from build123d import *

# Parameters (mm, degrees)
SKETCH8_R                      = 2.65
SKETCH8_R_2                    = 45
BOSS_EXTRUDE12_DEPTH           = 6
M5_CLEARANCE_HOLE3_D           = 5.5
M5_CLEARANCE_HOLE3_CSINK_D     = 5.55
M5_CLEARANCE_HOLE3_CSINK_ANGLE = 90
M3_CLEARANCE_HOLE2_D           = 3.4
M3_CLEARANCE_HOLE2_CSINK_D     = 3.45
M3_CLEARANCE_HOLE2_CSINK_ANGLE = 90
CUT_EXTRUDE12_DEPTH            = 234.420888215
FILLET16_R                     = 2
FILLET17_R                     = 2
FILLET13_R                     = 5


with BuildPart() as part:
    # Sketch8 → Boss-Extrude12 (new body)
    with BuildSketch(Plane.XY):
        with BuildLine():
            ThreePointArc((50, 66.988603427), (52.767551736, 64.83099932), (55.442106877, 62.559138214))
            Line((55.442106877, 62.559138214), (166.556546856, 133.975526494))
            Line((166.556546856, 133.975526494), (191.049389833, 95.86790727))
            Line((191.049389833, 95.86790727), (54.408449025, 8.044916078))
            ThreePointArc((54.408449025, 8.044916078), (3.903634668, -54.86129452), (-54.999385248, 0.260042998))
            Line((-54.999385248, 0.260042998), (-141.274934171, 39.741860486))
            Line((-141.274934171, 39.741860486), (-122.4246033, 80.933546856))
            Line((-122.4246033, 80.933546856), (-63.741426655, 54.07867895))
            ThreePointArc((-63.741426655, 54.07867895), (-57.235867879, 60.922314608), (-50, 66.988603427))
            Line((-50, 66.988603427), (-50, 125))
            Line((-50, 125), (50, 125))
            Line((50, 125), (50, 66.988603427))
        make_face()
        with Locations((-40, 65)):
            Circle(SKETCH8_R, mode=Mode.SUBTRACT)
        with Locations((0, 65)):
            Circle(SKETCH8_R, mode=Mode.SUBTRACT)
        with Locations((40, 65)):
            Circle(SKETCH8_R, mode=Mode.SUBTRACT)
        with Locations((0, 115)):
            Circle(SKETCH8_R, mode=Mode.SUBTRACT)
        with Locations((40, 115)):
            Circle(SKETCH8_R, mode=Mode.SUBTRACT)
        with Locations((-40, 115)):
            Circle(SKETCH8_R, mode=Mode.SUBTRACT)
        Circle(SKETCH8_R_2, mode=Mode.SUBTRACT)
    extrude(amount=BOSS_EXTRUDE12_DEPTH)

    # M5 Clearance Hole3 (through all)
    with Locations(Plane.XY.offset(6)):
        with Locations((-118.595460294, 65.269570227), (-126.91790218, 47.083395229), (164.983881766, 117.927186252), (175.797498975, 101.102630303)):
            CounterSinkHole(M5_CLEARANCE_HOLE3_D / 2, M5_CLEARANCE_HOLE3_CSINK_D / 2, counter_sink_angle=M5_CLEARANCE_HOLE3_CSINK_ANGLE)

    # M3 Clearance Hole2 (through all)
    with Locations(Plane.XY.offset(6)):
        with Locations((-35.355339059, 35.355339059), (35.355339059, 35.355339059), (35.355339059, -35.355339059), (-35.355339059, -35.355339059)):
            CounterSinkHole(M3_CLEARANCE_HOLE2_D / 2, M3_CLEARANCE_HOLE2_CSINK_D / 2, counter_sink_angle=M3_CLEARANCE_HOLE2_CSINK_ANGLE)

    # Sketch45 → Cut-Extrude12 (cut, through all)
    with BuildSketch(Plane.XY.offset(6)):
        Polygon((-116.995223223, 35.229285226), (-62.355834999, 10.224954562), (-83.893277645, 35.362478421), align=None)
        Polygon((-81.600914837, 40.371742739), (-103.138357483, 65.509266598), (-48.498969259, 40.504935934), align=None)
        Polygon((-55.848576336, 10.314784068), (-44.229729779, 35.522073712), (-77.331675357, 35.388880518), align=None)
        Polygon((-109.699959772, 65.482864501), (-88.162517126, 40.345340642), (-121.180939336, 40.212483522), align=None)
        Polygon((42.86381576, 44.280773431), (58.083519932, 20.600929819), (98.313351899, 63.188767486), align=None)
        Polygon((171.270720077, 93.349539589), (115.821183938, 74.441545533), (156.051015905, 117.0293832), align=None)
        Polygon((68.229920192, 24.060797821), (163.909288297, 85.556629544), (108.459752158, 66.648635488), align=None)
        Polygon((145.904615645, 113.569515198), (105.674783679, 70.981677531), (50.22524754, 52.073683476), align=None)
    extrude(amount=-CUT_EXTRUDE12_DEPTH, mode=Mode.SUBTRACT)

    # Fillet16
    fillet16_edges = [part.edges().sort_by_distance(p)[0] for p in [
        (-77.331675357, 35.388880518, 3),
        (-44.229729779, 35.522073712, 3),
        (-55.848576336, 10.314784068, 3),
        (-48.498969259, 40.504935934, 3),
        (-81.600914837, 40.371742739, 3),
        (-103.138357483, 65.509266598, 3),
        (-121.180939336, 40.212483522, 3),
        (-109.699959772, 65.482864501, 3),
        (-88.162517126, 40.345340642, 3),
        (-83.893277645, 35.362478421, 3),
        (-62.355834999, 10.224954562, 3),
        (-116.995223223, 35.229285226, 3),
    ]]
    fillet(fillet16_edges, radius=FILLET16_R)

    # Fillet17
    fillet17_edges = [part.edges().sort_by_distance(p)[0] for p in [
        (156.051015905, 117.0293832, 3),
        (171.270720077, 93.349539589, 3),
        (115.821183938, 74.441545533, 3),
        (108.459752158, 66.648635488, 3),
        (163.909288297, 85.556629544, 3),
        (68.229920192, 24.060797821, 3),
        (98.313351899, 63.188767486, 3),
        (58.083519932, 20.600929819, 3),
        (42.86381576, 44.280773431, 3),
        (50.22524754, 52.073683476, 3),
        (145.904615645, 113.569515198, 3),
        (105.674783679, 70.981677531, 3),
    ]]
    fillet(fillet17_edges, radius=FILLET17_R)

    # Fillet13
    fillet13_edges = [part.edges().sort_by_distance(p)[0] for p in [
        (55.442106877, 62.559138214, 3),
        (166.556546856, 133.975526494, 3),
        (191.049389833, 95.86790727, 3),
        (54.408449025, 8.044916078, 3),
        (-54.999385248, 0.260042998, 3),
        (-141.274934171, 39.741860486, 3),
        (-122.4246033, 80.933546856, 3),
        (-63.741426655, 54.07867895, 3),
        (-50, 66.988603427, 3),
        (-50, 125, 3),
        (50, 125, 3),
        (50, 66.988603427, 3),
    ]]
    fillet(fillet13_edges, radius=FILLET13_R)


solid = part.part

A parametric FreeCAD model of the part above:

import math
import FreeCAD as App
import Part
import Sketcher
from FreeCAD import Vector
Q = App.Units.Quantity


def edges_at(feature, points):
    """Names of the edges that pass closest to the given points."""
    edges = feature.Shape.Edges
    near = lambda p: min(range(len(edges)), key=lambda i: edges[i].distToShape(Part.Vertex(*p))[0])
    return sorted({f"Edge{near(p) + 1}" for p in points})


def add_polygon(sketch, points):
    """Adds a closed chain of lines whose ends are joined by coincident constraints."""
    first, n = sketch.GeometryCount, len(points)
    for a, b in zip(points, points[1:] + points[:1]):
        sketch.addGeometry(Part.LineSegment(App.Vector(*a, 0), App.Vector(*b, 0)), False)
    for i in range(n):
        sketch.addConstraint(Sketcher.Constraint("Coincident", first + i, 2, first + (i + 1) % n, 1))

doc = App.newDocument("Part")
body = doc.addObject("PartDesign::Body", "Body")

sketch1 = doc.addObject("Sketcher::SketchObject", "Sketch")
body.addObject(sketch1)
sketch1.AttachmentSupport = (doc.XY_Plane, [""])
sketch1.MapMode = "FlatFace"
sketch1.addGeometry(Part.ArcOfCircle(Part.Circle(Vector(0, 0, 0), Vector(0, 0, 1), 83.6), math.radians(48.45), math.radians(53.26)), False)
sketch1.addGeometry(Part.LineSegment(Vector(50, 67, 0), Vector(50, 125, 0)), False)
sketch1.addGeometry(Part.LineSegment(Vector(50, 125, 0), Vector(-50, 125, 0)), False)
sketch1.addGeometry(Part.LineSegment(Vector(-50, 125, 0), Vector(-50, 67, 0)), False)
sketch1.addGeometry(Part.ArcOfCircle(Part.Circle(Vector(0, 0, 0), Vector(0, 0, 1), 83.6), math.radians(126.74), math.radians(139.69)), False)
sketch1.addGeometry(Part.LineSegment(Vector(-63.7, 54.1, 0), Vector(-122.4, 80.9, 0)), False)
sketch1.addGeometry(Part.LineSegment(Vector(-122.4, 80.9, 0), Vector(-141.3, 39.7, 0)), False)
sketch1.addGeometry(Part.LineSegment(Vector(-141.3, 39.7, 0), Vector(-55, 0.3, 0)), False)
sketch1.addGeometry(Part.ArcOfCircle(Part.Circle(Vector(0, 0, 0), Vector(0, 0, 1), 55), math.radians(180), math.radians(368)), False)
sketch1.addGeometry(Part.LineSegment(Vector(54.4, 8, 0), Vector(191, 95.9, 0)), False)
sketch1.addGeometry(Part.LineSegment(Vector(191, 95.9, 0), Vector(166.6, 134, 0)), False)
sketch1.addGeometry(Part.LineSegment(Vector(166.6, 134, 0), Vector(55.4, 62.6, 0)), False)
sketch1.addGeometry(Part.Circle(Vector(0, 0, 0), Vector(0, 0, 1), 45), False)
sketch1.addGeometry(Part.Circle(Vector(40, 65, 0), Vector(0, 0, 1), 2.6), False)
sketch1.addGeometry(Part.Circle(Vector(40, 115, 0), Vector(0, 0, 1), 2.6), False)
sketch1.addGeometry(Part.Circle(Vector(0, 65, 0), Vector(0, 0, 1), 2.6), False)
sketch1.addGeometry(Part.Circle(Vector(-40, 65, 0), Vector(0, 0, 1), 2.6), False)
sketch1.addGeometry(Part.Circle(Vector(0, 115, 0), Vector(0, 0, 1), 2.6), False)
sketch1.addGeometry(Part.Circle(Vector(-40, 115, 0), Vector(0, 0, 1), 2.6), False)
sketch1.addConstraint(Sketcher.Constraint("Coincident", 0, 2, 1, 1))
sketch1.addConstraint(Sketcher.Constraint("Coincident", 1, 2, 2, 1))
sketch1.addConstraint(Sketcher.Constraint("Coincident", 2, 2, 3, 1))
sketch1.addConstraint(Sketcher.Constraint("Coincident", 3, 2, 4, 1))
sketch1.addConstraint(Sketcher.Constraint("Coincident", 4, 2, 5, 1))
sketch1.addConstraint(Sketcher.Constraint("Coincident", 5, 2, 6, 1))
sketch1.addConstraint(Sketcher.Constraint("Coincident", 6, 2, 7, 1))
sketch1.addConstraint(Sketcher.Constraint("Coincident", 7, 2, 8, 1))
sketch1.addConstraint(Sketcher.Constraint("Coincident", 8, 2, 9, 1))
sketch1.addConstraint(Sketcher.Constraint("Coincident", 9, 2, 10, 1))
sketch1.addConstraint(Sketcher.Constraint("Coincident", 10, 2, 11, 1))
sketch1.addConstraint(Sketcher.Constraint("Coincident", 11, 2, 0, 1))
sketch1.addConstraint(Sketcher.Constraint("Vertical", 1))
sketch1.addConstraint(Sketcher.Constraint("Horizontal", 2))
sketch1.addConstraint(Sketcher.Constraint("Vertical", 3))
sketch1.addConstraint(Sketcher.Constraint("Coincident", 0, 3, -1, 1))
sketch1.addConstraint(Sketcher.Constraint("Coincident", 4, 3, -1, 1))
sketch1.addConstraint(Sketcher.Constraint("Coincident", 8, 3, -1, 1))
sketch1.addConstraint(Sketcher.Constraint("Coincident", 12, 3, -1, 1))
sketch1.addConstraint(Sketcher.Constraint("Equal", 0, 4))
sketch1.addConstraint(Sketcher.Constraint("Equal", 13, 14))
sketch1.addConstraint(Sketcher.Constraint("Equal", 14, 15))
sketch1.addConstraint(Sketcher.Constraint("Equal", 15, 16))
sketch1.addConstraint(Sketcher.Constraint("Equal", 16, 17))
sketch1.addConstraint(Sketcher.Constraint("Equal", 17, 18))
sketch1.addConstraint(Sketcher.Constraint("Symmetric", 13, 3, 16, 3, -2))
sketch1.addConstraint(Sketcher.Constraint("Symmetric", 14, 3, 18, 3, -2))
sketch1.addConstraint(Sketcher.Constraint("PointOnObject", 15, 3, -2))
sketch1.addConstraint(Sketcher.Constraint("PointOnObject", 17, 3, -2))
sketch1.addConstraint(Sketcher.Constraint("Perpendicular", 5, 6))
sketch1.addConstraint(Sketcher.Constraint("Perpendicular", 6, 7))
sketch1.addConstraint(Sketcher.Constraint("Perpendicular", 9, 10))
sketch1.addConstraint(Sketcher.Constraint("Perpendicular", 10, 11))
sketch1.addConstraint(Sketcher.Constraint("Horizontal", 13, 3, 15, 3))
sketch1.addConstraint(Sketcher.Constraint("Horizontal", 14, 3, 17, 3))
sketch1.addConstraint(Sketcher.Constraint("Horizontal", 0, 2, 3, 2))
sketch1.addConstraint(Sketcher.Constraint("Vertical", 13, 3, 14, 3))
sketch1.addConstraint(Sketcher.Constraint("Equal", 6, 10))
sketch1.addConstraint(Sketcher.Constraint("Diameter", 12, Q("90 mm")))
sketch1.addConstraint(Sketcher.Constraint("Radius", 8, Q("55 mm")))
sketch1.addConstraint(Sketcher.Constraint("Diameter", 13, Q("5.3 mm")))
sketch1.addConstraint(Sketcher.Constraint("DistanceX", 2, 2, 2, 1, Q("100 mm")))
sketch1.addConstraint(Sketcher.Constraint("DistanceX", -1, 1, 13, 3, Q("40 mm")))
sketch1.addConstraint(Sketcher.Constraint("DistanceY", -1, 1, 13, 3, Q("65 mm")))
sketch1.addConstraint(Sketcher.Constraint("DistanceY", -1, 1, 14, 3, Q("115 mm")))
sketch1.addConstraint(Sketcher.Constraint("DistanceY", -1, 1, 1, 2, Q("125 mm")))
sketch1.addConstraint(Sketcher.Constraint("Distance", 6, Q("45.3 mm")))
sketch1.addConstraint(Sketcher.Constraint("Angle", 5, Q("155.41 deg")))
sketch1.addConstraint(Sketcher.Constraint("Angle", 9, Q("32.73 deg")))
sketch1.addConstraint(Sketcher.Constraint("Radius", 0, Q("83.591106 mm")))
sketch1.addConstraint(Sketcher.Constraint("Distance", 5, Q("64.53603 mm")))
sketch1.addConstraint(Sketcher.Constraint("Distance", 7, Q("94.880368 mm")))
sketch1.addConstraint(Sketcher.Constraint("Distance", 9, Q("162.430368 mm")))
sketch1.addConstraint(Sketcher.Constraint("Distance", 11, Q("132.08603 mm")))
pad1 = doc.addObject("PartDesign::Pad", "Pad")
body.addObject(pad1)
pad1.Profile = sketch1
pad1.Length = 6

sketch2 = doc.addObject("Sketcher::SketchObject", "Sketch001")
body.addObject(sketch2)
sketch2.AttachmentSupport = (doc.XY_Plane, [""])
sketch2.MapMode = "FlatFace"
sketch2.AttachmentOffset = App.Placement(Vector(0, 0, 6), App.Rotation())
sketch2.addGeometry(Part.Circle(Vector(-118.6, 65.3, 0), Vector(0, 0, 1), 2.8), False)
sketch2.addGeometry(Part.Circle(Vector(-126.9, 47.1, 0), Vector(0, 0, 1), 2.8), False)
sketch2.addGeometry(Part.Circle(Vector(165, 117.9, 0), Vector(0, 0, 1), 2.8), False)
sketch2.addGeometry(Part.Circle(Vector(175.8, 101.1, 0), Vector(0, 0, 1), 2.8), False)
sketch2.addConstraint(Sketcher.Constraint("Equal", 0, 1))
sketch2.addConstraint(Sketcher.Constraint("Equal", 1, 2))
sketch2.addConstraint(Sketcher.Constraint("Equal", 2, 3))
sketch2.addConstraint(Sketcher.Constraint("Diameter", 0, Q("5.5 mm")))
sketch2.addConstraint(Sketcher.Constraint("DistanceX", -1, 1, 3, 3, Q("175.797499 mm")))
sketch2.addConstraint(Sketcher.Constraint("DistanceX", 1, 3, 3, 3, Q("302.715401 mm")))
sketch2.addConstraint(Sketcher.Constraint("DistanceX", 0, 3, -1, 1, Q("118.59546 mm")))
sketch2.addConstraint(Sketcher.Constraint("DistanceY", -1, 1, 0, 3, Q("65.26957 mm")))
sketch2.addConstraint(Sketcher.Constraint("DistanceX", -1, 1, 2, 3, Q("164.983882 mm")))
sketch2.addConstraint(Sketcher.Constraint("DistanceY", -1, 1, 3, 3, Q("101.10263 mm")))
sketch2.addConstraint(Sketcher.Constraint("DistanceY", 1, 3, 2, 3, Q("70.843791 mm")))
sketch2.addConstraint(Sketcher.Constraint("DistanceY", -1, 1, 1, 3, Q("47.083395 mm")))
doc.recompute()
hole = doc.addObject("PartDesign::Hole", "Hole")
body.addObject(hole)
hole.Profile = sketch2
hole.ThreadType = "None"
hole.Diameter = 5.5
hole.DepthType = "ThroughAll"
hole.HoleCutType = "Countersink"
hole.HoleCutDiameter = 5.55
hole.HoleCutCountersinkAngle = 90

sketch3 = doc.addObject("Sketcher::SketchObject", "Sketch002")
body.addObject(sketch3)
sketch3.AttachmentSupport = (doc.XY_Plane, [""])
sketch3.MapMode = "FlatFace"
sketch3.AttachmentOffset = App.Placement(Vector(0, 0, 6), App.Rotation())
sketch3.addGeometry(Part.Circle(Vector(-35.4, 35.4, 0), Vector(0, 0, 1), 1.7), False)
sketch3.addGeometry(Part.Circle(Vector(35.4, 35.4, 0), Vector(0, 0, 1), 1.7), False)
sketch3.addGeometry(Part.Circle(Vector(35.4, -35.4, 0), Vector(0, 0, 1), 1.7), False)
sketch3.addGeometry(Part.Circle(Vector(-35.4, -35.4, 0), Vector(0, 0, 1), 1.7), False)
sketch3.addConstraint(Sketcher.Constraint("Equal", 0, 1))
sketch3.addConstraint(Sketcher.Constraint("Equal", 1, 2))
sketch3.addConstraint(Sketcher.Constraint("Equal", 2, 3))
sketch3.addConstraint(Sketcher.Constraint("Symmetric", 0, 3, 2, 3, -1, 1))
sketch3.addConstraint(Sketcher.Constraint("Symmetric", 1, 3, 3, 3, -1, 1))
sketch3.addConstraint(Sketcher.Constraint("Symmetric", 0, 3, 1, 3, -2))
sketch3.addConstraint(Sketcher.Constraint("Diameter", 0, Q("3.4 mm")))
sketch3.addConstraint(Sketcher.Constraint("DistanceX", 0, 3, -1, 1, Q("35.355339 mm")))
sketch3.addConstraint(Sketcher.Constraint("DistanceY", -1, 1, 0, 3, Q("35.355339 mm")))
doc.recompute()
hole2 = doc.addObject("PartDesign::Hole", "Hole001")
body.addObject(hole2)
hole2.Profile = sketch3
hole2.ThreadType = "None"
hole2.Diameter = 3.4
hole2.DepthType = "ThroughAll"
hole2.HoleCutType = "Countersink"
hole2.HoleCutDiameter = 3.45
hole2.HoleCutCountersinkAngle = 90

sketch4 = doc.addObject("Sketcher::SketchObject", "Sketch003")
body.addObject(sketch4)
sketch4.AttachmentSupport = (doc.XY_Plane, [""])
sketch4.MapMode = "FlatFace"
sketch4.AttachmentOffset = App.Placement(Vector(0, 0, 6), App.Rotation())
add_polygon(sketch4, [(-117, 35), (-62, 10), (-84, 35)])
add_polygon(sketch4, [(-103, 66), (-82, 40), (-48, 41)])
add_polygon(sketch4, [(-56, 10), (-44, 36), (-77, 35)])
add_polygon(sketch4, [(-88, 40), (-110, 65), (-121, 40)])
add_polygon(sketch4, [(43, 44), (58, 21), (98, 63)])
add_polygon(sketch4, [(116, 74), (171, 93), (156, 117)])
add_polygon(sketch4, [(68, 24), (164, 86), (108, 67)])
add_polygon(sketch4, [(106, 71), (146, 114), (50, 52)])
sketch4.addConstraint(Sketcher.Constraint("Parallel", 1, 3))
sketch4.addConstraint(Sketcher.Constraint("Parallel", 2, 4))
sketch4.addConstraint(Sketcher.Constraint("Parallel", 0, 5))
sketch4.addConstraint(Sketcher.Constraint("Parallel", 4, 7))
sketch4.addConstraint(Sketcher.Constraint("Parallel", 3, 8))
sketch4.addConstraint(Sketcher.Constraint("Parallel", 8, 9))
sketch4.addConstraint(Sketcher.Constraint("Parallel", 7, 11))
sketch4.addConstraint(Sketcher.Constraint("Parallel", 14, 15))
sketch4.addConstraint(Sketcher.Constraint("Parallel", 12, 16))
sketch4.addConstraint(Sketcher.Constraint("Parallel", 13, 17))
sketch4.addConstraint(Sketcher.Constraint("Perpendicular", 16, 18))
sketch4.addConstraint(Sketcher.Constraint("Parallel", 15, 19))
sketch4.addConstraint(Sketcher.Constraint("Parallel", 17, 20))
sketch4.addConstraint(Sketcher.Constraint("Parallel", 20, 21))
sketch4.addConstraint(Sketcher.Constraint("Parallel", 18, 22))
sketch4.addConstraint(Sketcher.Constraint("Parallel", 19, 23))
sketch4.addConstraint(Sketcher.Constraint("Equal", 1, 2))
sketch4.addConstraint(Sketcher.Constraint("Equal", 2, 3))
sketch4.addConstraint(Sketcher.Constraint("Equal", 4, 7))
sketch4.addConstraint(Sketcher.Constraint("Equal", 7, 9))
sketch4.addConstraint(Sketcher.Constraint("Equal", 6, 10))
sketch4.addConstraint(Sketcher.Constraint("Equal", 13, 14))
sketch4.addConstraint(Sketcher.Constraint("Equal", 14, 15))
sketch4.addConstraint(Sketcher.Constraint("Equal", 17, 19))
sketch4.addConstraint(Sketcher.Constraint("Equal", 20, 21))
sketch4.addConstraint(Sketcher.Constraint("Angle", 0, Q("-24.59 deg")))
sketch4.addConstraint(Sketcher.Constraint("Angle", 12, Q("-57.27 deg")))
sketch4.addConstraint(Sketcher.Constraint("DistanceX", 7, 2, 8, 2, Q("21.483099 mm")))
sketch4.addConstraint(Sketcher.Constraint("DistanceX", 1, 2, 8, 2, Q("28.044701 mm")))
sketch4.addConstraint(Sketcher.Constraint("DistanceY", 2, 2, 10, 2, Q("4.983198 mm")))
sketch4.addConstraint(Sketcher.Constraint("DistanceY", 6, 2, 14, 2, Q("8.7587 mm")))
sketch4.addConstraint(Sketcher.Constraint("DistanceX", 12, 2, 15, 2, Q("113.1872 mm")))
sketch4.addConstraint(Sketcher.Constraint("DistanceY", 12, 2, 18, 2, Q("64.9557 mm")))
sketch4.addConstraint(Sketcher.Constraint("DistanceX", 13, 2, 19, 2, Q("10.1464 mm")))
sketch4.addConstraint(Sketcher.Constraint("DistanceX", 21, 2, 16, 2, Q("10.1464 mm")))
sketch4.addConstraint(Sketcher.Constraint("Distance", 0, Q("60.088928 mm")))
sketch4.addConstraint(Sketcher.Constraint("Distance", 6, Q("27.756171 mm")))
sketch4.addConstraint(Sketcher.Constraint("DistanceY", -1, 1, 1, 2, Q("35.362478 mm")))
sketch4.addConstraint(Sketcher.Constraint("DistanceX", 4, 2, -1, 1, Q("48.498969 mm")))
sketch4.addConstraint(Sketcher.Constraint("DistanceX", 6, 2, -1, 1, Q("44.22973 mm")))
sketch4.addConstraint(Sketcher.Constraint("DistanceY", -1, 1, 7, 2, Q("35.388881 mm")))
sketch4.addConstraint(Sketcher.Constraint("DistanceX", 9, 2, -1, 1, Q("109.69996 mm")))
sketch4.addConstraint(Sketcher.Constraint("DistanceX", -1, 1, 12, 2, Q("58.08352 mm")))
sketch4.addConstraint(Sketcher.Constraint("DistanceY", -1, 1, 12, 2, Q("20.60093 mm")))
sketch4.addConstraint(Sketcher.Constraint("DistanceX", -1, 1, 13, 2, Q("98.313352 mm")))
sketch4.addConstraint(Sketcher.Constraint("DistanceY", -1, 1, 15, 2, Q("93.34954 mm")))
sketch4.addConstraint(Sketcher.Constraint("DistanceY", 0, 2, 3, 2, Q("30.146788 mm")))
sketch4.addConstraint(Sketcher.Constraint("DistanceY", 21, 2, 16, 2, Q("3.459868 mm")))
pocket1 = doc.addObject("PartDesign::Pocket", "Pocket")
body.addObject(pocket1)
pocket1.Profile = sketch4
pocket1.Type = "ThroughAll"
doc.recompute()

fillet = doc.addObject("PartDesign::Fillet", "Fillet")
body.addObject(fillet)
fillet.Base = (pocket1, edges_at(pocket1, [
    (-77.332, 35.389, 3),
    (-44.23, 35.522, 3),
    (-55.849, 10.315, 3),
    (-48.499, 40.505, 3),
    (-81.601, 40.372, 3),
    (-103.138, 65.509, 3),
    (-121.181, 40.212, 3),
    (-109.7, 65.483, 3),
    (-88.163, 40.345, 3),
    (-83.893, 35.362, 3),
    (-62.356, 10.225, 3),
    (-116.995, 35.229, 3),
]))
fillet.Radius = 2
doc.recompute()

fillet2 = doc.addObject("PartDesign::Fillet", "Fillet001")
body.addObject(fillet2)
fillet2.Base = (fillet, edges_at(fillet, [
    (156.051, 117.029, 3),
    (171.271, 93.35, 3),
    (115.821, 74.442, 3),
    (108.46, 66.649, 3),
    (163.909, 85.557, 3),
    (68.23, 24.061, 3),
    (98.313, 63.189, 3),
    (58.084, 20.601, 3),
    (42.864, 44.281, 3),
    (50.225, 52.074, 3),
    (145.905, 113.57, 3),
    (105.675, 70.982, 3),
]))
fillet2.Radius = 2
doc.recompute()

fillet3 = doc.addObject("PartDesign::Fillet", "Fillet002")
body.addObject(fillet3)
fillet3.Base = (fillet2, edges_at(fillet2, [
    (55.442, 62.559, 3),
    (166.557, 133.976, 3),
    (191.049, 95.868, 3),
    (54.408, 8.045, 3),
    (-54.999, 0.26, 3),
    (-141.275, 39.742, 3),
    (-122.425, 80.934, 3),
    (-63.741, 54.079, 3),
    (-50, 66.989, 3),
    (-50, 125, 3),
    (50, 125, 3),
    (50, 66.989, 3),
]))
fillet3.Radius = 5

doc.recompute()
